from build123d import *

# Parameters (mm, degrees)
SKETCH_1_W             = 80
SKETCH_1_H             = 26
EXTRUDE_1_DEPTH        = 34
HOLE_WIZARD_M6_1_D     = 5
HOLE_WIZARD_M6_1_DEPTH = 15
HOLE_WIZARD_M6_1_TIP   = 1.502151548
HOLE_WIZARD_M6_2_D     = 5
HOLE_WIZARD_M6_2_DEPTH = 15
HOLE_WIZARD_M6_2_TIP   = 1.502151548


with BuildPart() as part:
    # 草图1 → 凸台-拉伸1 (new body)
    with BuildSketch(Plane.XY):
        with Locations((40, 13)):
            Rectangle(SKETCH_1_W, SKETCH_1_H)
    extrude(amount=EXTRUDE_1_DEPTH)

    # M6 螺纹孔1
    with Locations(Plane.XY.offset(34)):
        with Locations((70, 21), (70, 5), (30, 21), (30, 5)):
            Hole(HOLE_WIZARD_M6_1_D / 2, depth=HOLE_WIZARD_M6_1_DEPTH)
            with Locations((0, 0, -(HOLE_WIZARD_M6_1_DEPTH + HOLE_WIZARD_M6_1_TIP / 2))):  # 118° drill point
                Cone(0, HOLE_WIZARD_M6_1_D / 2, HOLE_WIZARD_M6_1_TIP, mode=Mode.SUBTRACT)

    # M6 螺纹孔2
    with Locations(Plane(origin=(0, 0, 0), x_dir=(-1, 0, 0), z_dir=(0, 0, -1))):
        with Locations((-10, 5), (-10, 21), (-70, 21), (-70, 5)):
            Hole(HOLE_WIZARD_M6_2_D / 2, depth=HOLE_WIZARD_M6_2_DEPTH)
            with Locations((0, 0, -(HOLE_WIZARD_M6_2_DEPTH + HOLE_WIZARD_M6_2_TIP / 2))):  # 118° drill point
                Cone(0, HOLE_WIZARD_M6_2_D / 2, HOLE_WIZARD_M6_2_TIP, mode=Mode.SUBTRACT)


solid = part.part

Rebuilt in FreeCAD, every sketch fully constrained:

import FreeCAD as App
import Part
import Sketcher

V = App.Vector
Q = App.Units.Quantity


def add_polygon(sketch, points):
    """Adds a closed chain of lines whose ends are joined by coincident constraints."""
    first, n = sketch.GeometryCount, len(points)
    for a, b in zip(points, points[1:] + points[:1]):
        sketch.addGeometry(Part.LineSegment(App.Vector(*a, 0), App.Vector(*b, 0)), False)
    for i in range(n):
        sketch.addConstraint(Sketcher.Constraint("Coincident", first + i, 2, first + (i + 1) % n, 1))

doc = App.newDocument("Part")
body = doc.addObject("PartDesign::Body", "Body")

# Sketch on XY plane
sketch1 = doc.addObject("Sketcher::SketchObject", "Sketch")
body.addObject(sketch1)
sketch1.AttachmentSupport = (doc.XY_Plane, [""])
sketch1.MapMode = "FlatFace"
add_polygon(sketch1, [(0, 26), (0, 0), (80, 0), (80, 26)])  # lines 0-3
sketch1.addConstraint([
    Sketcher.Constraint("Vertical", 0),
    Sketcher.Constraint("Horizontal", 1),
    Sketcher.Constraint("Vertical", 2),
    Sketcher.Constraint("Horizontal", 3),
    Sketcher.Constraint("Coincident", 0, 2, -1, 1),
    Sketcher.Constraint("DistanceX", 1, 1, 1, 2, Q("80 mm")),
    Sketcher.Constraint("DistanceY", 0, 2, 0, 1, Q("26 mm")),
])
pad1 = doc.addObject("PartDesign::Pad", "Pad")
body.addObject(pad1)
pad1.Profile = sketch1
pad1.Length = 34

# Sketch on XY plane
sketch2 = doc.addObject("Sketcher::SketchObject", "Sketch001")
body.addObject(sketch2)
sketch2.AttachmentSupport = (doc.XY_Plane, [""])
sketch2.MapMode = "FlatFace"
sketch2.AttachmentOffset = App.Placement(V(0, 0, 34), App.Rotation())
sketch2.addGeometry([
    Part.Circle(V(70, 21, 0), V(0, 0, 1), 2.5),
    Part.Circle(V(70, 5, 0), V(0, 0, 1), 2.5),
    Part.Circle(V(30, 21, 0), V(0, 0, 1), 2.5),
    Part.Circle(V(30, 5, 0), V(0, 0, 1), 2.5),
], False)
sketch2.addConstraint([
    Sketcher.Constraint("Equal", 0, 1),
    Sketcher.Constraint("Equal", 1, 2),
    Sketcher.Constraint("Equal", 2, 3),
    Sketcher.Constraint("Horizontal", 0, 3, 2, 3),
    Sketcher.Constraint("Horizontal", 1, 3, 3, 3),
    Sketcher.Constraint("Vertical", 0, 3, 1, 3),
    Sketcher.Constraint("Vertical", 2, 3, 3, 3),
    Sketcher.Constraint("Diameter", 0, Q("5 mm")),
    Sketcher.Constraint("DistanceX", -1, 1, 0, 3, Q("70 mm")),
    Sketcher.Constraint("DistanceY", -1, 1, 0, 3, Q("21 mm")),
    Sketcher.Constraint("DistanceY", -1, 1, 1, 3, Q("5 mm")),
    Sketcher.Constraint("DistanceX", -1, 1, 2, 3, Q("30 mm")),
])
doc.recompute()
hole = doc.addObject("PartDesign::Hole", "Hole")
body.addObject(hole)
hole.Profile = sketch2
hole.ThreadType = "None"
hole.Diameter = 5
hole.DepthType = "Dimension"
hole.Depth = 15
hole.DrillPoint = "Angled"
hole.DrillPointAngle = 118

# Sketch on XY plane
sketch3 = doc.addObject("Sketcher::SketchObject", "Sketch002")
body.addObject(sketch3)
sketch3.AttachmentSupport = (doc.XY_Plane, [""])
sketch3.MapMode = "FlatFace"
sketch3.addGeometry([
    Part.Circle(V(10, 5, 0), V(0, 0, 1), 2.5),
    Part.Circle(V(10, 21, 0), V(0, 0, 1), 2.5),
    Part.Circle(V(70, 21, 0), V(0, 0, 1), 2.5),
    Part.Circle(V(70, 5, 0), V(0, 0, 1), 2.5),
], False)
sketch3.addConstraint([
    Sketcher.Constraint("Equal", 0, 1),
    Sketcher.Constraint("Equal", 1, 2),
    Sketcher.Constraint("Equal", 2, 3),
    Sketcher.Constraint("Horizontal", 1, 3, 2, 3),
    Sketcher.Constraint("Horizontal", 0, 3, 3, 3),
    Sketcher.Constraint("Vertical", 0, 3, 1, 3),
    Sketcher.Constraint("Vertical", 2, 3, 3, 3),
    Sketcher.Constraint("Diameter", 0, Q("5 mm")),
    Sketcher.Constraint("DistanceX", -1, 1, 0, 3, Q("10 mm")),
    Sketcher.Constraint("DistanceY", -1, 1, 0, 3, Q("5 mm")),
    Sketcher.Constraint("DistanceY", -1, 1, 1, 3, Q("21 mm")),
    Sketcher.Constraint("DistanceX", -1, 1, 2, 3, Q("70 mm")),
])
doc.recompute()
hole2 = doc.addObject("PartDesign::Hole", "Hole001")
body.addObject(hole2)
hole2.Profile = sketch3
hole2.ThreadType = "None"
hole2.Diameter = 5
hole2.DepthType = "Dimension"
hole2.Depth = 15
hole2.DrillPoint = "Angled"
hole2.DrillPointAngle = 118
hole2.Reversed = True

doc.recompute()
